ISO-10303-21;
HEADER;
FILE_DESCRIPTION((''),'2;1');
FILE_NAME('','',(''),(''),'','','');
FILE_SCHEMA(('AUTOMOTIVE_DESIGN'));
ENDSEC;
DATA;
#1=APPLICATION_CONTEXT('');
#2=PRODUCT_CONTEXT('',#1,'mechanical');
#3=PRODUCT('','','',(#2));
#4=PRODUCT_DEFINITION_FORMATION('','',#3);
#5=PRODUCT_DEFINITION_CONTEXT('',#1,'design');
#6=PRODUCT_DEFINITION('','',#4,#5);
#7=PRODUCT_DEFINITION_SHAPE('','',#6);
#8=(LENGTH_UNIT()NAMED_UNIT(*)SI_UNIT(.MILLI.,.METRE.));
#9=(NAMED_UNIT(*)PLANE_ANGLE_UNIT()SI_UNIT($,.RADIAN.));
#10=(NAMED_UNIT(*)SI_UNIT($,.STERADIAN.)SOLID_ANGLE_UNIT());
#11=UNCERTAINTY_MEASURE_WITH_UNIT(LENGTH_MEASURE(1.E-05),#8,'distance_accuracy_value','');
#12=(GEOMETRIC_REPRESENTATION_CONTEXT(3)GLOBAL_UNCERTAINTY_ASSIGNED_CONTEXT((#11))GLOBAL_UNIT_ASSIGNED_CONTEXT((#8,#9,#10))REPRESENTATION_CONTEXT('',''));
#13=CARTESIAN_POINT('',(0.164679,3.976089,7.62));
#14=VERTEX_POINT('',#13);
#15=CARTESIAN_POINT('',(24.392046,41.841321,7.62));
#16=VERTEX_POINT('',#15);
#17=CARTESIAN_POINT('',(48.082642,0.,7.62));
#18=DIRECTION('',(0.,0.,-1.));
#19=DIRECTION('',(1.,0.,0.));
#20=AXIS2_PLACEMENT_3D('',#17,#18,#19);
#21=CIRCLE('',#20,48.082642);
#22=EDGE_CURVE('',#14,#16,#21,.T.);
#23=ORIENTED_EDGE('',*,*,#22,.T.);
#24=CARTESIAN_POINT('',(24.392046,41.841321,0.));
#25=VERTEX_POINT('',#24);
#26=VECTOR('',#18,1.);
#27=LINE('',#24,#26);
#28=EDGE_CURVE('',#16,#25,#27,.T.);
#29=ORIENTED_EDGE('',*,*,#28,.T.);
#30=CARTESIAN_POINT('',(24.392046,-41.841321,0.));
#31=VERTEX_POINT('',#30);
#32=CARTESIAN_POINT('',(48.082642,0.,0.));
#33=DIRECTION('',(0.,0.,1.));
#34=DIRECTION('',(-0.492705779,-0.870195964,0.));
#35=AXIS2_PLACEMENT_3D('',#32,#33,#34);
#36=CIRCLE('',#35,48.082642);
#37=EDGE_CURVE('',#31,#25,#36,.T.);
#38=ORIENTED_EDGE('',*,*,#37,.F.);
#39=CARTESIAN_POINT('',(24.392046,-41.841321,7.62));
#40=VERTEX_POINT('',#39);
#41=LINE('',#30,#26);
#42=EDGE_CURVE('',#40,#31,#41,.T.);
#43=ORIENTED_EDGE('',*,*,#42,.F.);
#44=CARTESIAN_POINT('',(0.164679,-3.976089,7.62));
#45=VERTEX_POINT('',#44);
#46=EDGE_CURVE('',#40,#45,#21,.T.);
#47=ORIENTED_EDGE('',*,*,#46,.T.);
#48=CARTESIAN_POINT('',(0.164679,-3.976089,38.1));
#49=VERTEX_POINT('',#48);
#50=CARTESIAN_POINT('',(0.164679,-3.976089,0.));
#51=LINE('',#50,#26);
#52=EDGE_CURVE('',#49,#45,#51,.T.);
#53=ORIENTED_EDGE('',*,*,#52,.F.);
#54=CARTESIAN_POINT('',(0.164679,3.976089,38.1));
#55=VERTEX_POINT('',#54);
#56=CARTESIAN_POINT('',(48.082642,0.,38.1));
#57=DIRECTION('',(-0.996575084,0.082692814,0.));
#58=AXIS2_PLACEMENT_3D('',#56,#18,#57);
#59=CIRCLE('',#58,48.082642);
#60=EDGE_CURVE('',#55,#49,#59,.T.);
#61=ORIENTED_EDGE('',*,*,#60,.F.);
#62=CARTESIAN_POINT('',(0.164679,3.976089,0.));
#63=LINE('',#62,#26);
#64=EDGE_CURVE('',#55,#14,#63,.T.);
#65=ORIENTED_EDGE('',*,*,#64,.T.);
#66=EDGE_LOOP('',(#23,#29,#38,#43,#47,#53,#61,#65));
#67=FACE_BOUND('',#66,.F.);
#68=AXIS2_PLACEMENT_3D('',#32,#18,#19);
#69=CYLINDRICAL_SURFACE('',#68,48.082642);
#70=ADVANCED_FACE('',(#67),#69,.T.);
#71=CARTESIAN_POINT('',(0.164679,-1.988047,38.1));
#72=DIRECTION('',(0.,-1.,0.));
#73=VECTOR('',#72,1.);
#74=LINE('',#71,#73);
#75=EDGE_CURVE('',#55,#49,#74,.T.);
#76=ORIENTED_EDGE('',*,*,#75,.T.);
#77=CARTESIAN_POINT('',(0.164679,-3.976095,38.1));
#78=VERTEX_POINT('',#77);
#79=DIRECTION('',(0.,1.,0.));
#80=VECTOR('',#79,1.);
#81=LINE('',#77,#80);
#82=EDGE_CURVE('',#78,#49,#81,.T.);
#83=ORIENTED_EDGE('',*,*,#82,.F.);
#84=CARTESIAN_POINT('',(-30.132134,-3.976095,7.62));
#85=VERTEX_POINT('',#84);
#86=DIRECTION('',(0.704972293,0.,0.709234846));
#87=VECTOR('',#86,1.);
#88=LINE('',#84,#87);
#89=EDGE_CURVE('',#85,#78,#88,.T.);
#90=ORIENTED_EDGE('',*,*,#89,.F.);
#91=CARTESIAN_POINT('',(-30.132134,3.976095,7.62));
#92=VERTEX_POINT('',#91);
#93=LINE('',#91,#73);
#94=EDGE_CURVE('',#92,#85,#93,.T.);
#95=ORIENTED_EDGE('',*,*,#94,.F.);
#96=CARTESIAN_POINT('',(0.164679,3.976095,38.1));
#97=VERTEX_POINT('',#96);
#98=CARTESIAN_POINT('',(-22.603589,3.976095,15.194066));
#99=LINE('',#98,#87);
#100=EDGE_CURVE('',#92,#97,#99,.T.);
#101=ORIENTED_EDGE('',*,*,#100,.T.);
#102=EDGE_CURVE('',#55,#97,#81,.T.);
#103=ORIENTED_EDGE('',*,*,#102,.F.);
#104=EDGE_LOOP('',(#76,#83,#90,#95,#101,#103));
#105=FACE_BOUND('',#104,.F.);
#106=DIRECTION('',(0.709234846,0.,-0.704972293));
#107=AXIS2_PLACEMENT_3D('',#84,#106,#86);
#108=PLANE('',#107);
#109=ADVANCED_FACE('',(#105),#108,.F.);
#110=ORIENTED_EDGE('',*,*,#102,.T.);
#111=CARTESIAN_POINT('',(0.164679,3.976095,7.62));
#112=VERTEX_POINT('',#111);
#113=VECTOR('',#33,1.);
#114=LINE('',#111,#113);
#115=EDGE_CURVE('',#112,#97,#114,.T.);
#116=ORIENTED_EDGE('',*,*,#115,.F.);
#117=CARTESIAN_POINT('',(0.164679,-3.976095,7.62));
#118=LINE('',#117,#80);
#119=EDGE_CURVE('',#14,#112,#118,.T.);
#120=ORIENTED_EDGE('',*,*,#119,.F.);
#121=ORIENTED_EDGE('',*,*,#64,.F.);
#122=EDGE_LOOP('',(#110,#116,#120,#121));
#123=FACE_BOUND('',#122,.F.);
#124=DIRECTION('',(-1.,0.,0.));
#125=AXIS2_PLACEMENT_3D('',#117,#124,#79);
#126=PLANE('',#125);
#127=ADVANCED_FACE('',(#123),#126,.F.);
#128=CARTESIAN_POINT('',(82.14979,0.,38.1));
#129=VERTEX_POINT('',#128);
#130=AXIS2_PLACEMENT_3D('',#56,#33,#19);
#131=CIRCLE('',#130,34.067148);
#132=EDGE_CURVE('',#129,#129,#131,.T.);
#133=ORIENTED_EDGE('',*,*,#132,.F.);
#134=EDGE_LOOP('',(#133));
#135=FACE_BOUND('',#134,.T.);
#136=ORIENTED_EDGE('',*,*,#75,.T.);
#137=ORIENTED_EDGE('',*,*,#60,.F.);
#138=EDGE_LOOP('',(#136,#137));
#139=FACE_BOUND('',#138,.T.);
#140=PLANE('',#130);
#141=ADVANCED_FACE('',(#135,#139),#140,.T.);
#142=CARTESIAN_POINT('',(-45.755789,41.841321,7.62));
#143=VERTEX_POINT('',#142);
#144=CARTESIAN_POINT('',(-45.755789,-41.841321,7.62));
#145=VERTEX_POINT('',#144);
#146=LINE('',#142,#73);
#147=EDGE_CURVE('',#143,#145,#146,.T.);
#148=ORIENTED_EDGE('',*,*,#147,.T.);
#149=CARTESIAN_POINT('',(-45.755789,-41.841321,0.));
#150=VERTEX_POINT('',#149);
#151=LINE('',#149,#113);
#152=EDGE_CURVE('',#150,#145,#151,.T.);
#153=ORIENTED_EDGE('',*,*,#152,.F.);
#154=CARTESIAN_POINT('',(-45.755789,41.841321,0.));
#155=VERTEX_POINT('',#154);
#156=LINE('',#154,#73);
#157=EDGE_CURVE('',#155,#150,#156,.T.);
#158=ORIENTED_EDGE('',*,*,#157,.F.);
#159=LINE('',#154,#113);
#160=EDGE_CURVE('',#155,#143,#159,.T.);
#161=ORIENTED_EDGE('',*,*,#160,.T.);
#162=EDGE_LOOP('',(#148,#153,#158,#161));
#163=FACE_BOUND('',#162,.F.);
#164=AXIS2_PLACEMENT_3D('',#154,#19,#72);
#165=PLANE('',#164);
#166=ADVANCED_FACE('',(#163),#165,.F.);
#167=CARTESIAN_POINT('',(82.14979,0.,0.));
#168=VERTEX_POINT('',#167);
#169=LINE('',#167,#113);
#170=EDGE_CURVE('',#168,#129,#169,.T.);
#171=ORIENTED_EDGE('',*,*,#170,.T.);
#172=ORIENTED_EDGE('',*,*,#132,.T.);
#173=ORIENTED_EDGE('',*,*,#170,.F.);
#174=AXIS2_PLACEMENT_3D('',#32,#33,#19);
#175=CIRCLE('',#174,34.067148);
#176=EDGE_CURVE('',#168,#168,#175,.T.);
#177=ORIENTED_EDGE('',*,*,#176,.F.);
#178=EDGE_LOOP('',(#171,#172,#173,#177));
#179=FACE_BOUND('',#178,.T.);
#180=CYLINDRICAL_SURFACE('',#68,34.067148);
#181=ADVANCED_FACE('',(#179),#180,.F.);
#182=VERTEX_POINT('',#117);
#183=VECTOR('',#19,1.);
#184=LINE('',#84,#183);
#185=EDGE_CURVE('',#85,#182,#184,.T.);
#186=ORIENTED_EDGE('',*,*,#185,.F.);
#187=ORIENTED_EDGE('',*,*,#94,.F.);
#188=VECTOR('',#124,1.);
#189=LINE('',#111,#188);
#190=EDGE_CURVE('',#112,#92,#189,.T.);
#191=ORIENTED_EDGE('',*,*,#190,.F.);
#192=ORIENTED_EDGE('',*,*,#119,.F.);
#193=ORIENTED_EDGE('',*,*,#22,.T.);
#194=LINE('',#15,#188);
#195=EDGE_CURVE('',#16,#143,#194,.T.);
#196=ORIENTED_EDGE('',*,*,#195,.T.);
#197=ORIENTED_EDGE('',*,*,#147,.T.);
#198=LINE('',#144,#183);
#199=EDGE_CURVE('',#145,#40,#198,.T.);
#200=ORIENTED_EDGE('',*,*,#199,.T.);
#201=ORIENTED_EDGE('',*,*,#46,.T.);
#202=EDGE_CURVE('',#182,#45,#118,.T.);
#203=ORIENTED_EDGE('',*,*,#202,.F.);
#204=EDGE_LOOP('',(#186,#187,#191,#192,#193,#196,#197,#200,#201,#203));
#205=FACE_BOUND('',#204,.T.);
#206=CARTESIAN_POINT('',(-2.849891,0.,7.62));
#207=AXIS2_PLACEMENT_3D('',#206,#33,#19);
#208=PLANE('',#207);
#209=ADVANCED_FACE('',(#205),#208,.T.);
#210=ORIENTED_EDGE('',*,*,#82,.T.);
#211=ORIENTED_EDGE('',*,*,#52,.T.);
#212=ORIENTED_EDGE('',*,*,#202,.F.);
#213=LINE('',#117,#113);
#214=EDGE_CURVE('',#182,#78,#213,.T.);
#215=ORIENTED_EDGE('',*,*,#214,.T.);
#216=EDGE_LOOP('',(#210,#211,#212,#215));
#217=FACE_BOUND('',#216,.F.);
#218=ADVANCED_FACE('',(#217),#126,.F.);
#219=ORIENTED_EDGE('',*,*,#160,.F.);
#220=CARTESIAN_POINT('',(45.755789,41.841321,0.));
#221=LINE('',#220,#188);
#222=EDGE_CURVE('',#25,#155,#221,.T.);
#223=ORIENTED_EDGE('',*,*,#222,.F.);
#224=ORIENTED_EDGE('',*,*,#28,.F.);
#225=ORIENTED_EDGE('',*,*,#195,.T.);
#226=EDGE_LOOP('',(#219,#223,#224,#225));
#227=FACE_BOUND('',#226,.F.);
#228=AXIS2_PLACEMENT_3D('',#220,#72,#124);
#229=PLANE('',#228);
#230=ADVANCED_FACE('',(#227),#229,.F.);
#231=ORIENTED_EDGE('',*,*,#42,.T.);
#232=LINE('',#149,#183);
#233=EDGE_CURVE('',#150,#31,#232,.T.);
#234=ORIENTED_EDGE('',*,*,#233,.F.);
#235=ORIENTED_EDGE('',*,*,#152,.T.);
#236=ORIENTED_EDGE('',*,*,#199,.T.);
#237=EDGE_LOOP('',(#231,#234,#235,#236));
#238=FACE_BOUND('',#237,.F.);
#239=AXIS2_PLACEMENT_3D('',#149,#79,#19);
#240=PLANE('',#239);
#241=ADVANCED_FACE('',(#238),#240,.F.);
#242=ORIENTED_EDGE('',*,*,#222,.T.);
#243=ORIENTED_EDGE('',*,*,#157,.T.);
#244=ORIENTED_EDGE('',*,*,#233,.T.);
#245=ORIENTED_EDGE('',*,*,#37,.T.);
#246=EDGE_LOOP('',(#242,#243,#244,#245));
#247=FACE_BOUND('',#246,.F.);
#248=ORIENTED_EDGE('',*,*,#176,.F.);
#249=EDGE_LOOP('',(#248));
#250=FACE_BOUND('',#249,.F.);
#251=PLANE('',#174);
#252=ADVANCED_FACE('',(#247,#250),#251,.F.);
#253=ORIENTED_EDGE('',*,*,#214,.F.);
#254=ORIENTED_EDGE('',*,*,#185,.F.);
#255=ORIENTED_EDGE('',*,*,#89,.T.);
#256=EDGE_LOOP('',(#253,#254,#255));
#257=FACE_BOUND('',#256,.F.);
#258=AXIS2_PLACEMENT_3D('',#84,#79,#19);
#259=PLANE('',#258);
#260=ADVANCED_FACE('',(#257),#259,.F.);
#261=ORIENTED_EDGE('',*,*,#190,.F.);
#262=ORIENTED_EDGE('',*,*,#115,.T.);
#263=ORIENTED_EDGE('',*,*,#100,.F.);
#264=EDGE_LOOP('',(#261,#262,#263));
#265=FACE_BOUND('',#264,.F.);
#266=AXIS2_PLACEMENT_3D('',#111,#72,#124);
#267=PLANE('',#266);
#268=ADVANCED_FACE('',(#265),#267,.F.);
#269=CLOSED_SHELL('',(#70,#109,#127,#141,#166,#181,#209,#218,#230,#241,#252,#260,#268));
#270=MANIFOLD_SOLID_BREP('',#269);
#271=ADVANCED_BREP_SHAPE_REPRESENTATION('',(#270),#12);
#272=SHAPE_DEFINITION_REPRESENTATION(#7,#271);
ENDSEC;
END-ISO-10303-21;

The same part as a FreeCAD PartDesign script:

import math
import FreeCAD as App
import Part
import Sketcher
Q = App.Units.Quantity


def add_polygon(sketch, points):
    """Adds a closed chain of lines whose ends are joined by coincident constraints."""
    first, n = sketch.GeometryCount, len(points)
    for a, b in zip(points, points[1:] + points[:1]):
        sketch.addGeometry(Part.LineSegment(App.Vector(*a, 0), App.Vector(*b, 0)), False)
    for i in range(n):
        sketch.addConstraint(Sketcher.Constraint("Coincident", first + i, 2, first + (i + 1) % n, 1))

doc = App.newDocument("Part")
params = doc.addObject("Spreadsheet::Sheet", "Params")
for row, (alias, value) in enumerate([
    ("pad1_length", "0.3 in"),
    ("pad2_length", "1.5 in"),
    ("pad3_length", "1.5 in"),
    ("sketch4_height", "0.3 in"),
    ("sketch4_height2", "1.5 in"),
], start=1):
    params.set(f"A{row}", alias)
    params.set(f"B{row}", "=" + value)
    params.setAlias(f"B{row}", alias)

body = doc.addObject("PartDesign::Body", "Body")

# Sketch on XY plane
sketch1 = body.newObject("Sketcher::SketchObject", "Sketch")
sketch1.AttachmentSupport = (doc.getObject("XY_Plane"), [""])
sketch1.MapMode = "FlatFace"
sketch1.addGeometry([
    Part.LineSegment(App.Vector(-46, -42, 0), App.Vector(46, -42, 0)),
    Part.ArcOfCircle(Part.Circle(App.Vector(46, 0, 0), App.Vector(0, 0, 1), 42), math.radians(90), math.radians(270)),
    Part.LineSegment(App.Vector(46, 42, 0), App.Vector(-46, 42, 0)),
    Part.LineSegment(App.Vector(-46, 42, 0), App.Vector(-46, -42, 0)),
], False)
sketch1.addConstraint([
    Sketcher.Constraint("Tangent", 0, 2, 1, 2),
    Sketcher.Constraint("Tangent", 1, 1, 2, 1),
    Sketcher.Constraint("Coincident", 2, 2, 3, 1),
    Sketcher.Constraint("Coincident", 3, 2, 0, 1),
    Sketcher.Constraint("Horizontal", 0),
    Sketcher.Constraint("Horizontal", 2),
    Sketcher.Constraint("Vertical", 3),
    Sketcher.Constraint("Symmetric", 0, 2, 2, 2, -1, 1),
    Sketcher.Constraint("Radius", 1, 41.841321),
    Sketcher.Constraint("DistanceX", 0, 1, 0, 2, 91.511578),
])
pad1 = body.newObject("PartDesign::Pad", "Pad")
pad1.Profile = sketch1
pad1.setExpression("Length", "Params.pad1_length")

# Sketch on XY plane
sketch2 = body.newObject("Sketcher::SketchObject", "Sketch001")
sketch2.AttachmentSupport = (doc.getObject("XY_Plane"), [""])
sketch2.MapMode = "FlatFace"
sketch2.addGeometry([
    Part.Circle(App.Vector(48, 0, 0), App.Vector(0, 0, 1), 48),
    Part.Circle(App.Vector(48, 0, 0), App.Vector(0, 0, 1), 34),
], False)
sketch2.addConstraint([
    Sketcher.Constraint("Coincident", 1, 3, 0, 3),
    Sketcher.Constraint("PointOnObject", 0, 3, -1),
    Sketcher.Constraint("Diameter", 0, 96.165284),
    Sketcher.Constraint("Diameter", 1, 68.134296),
    Sketcher.Constraint("DistanceX", -1, 1, 0, 3, 48.082642),
])
pad2 = body.newObject("PartDesign::Pad", "Pad001")
pad2.Profile = sketch2
pad2.setExpression("Length", "Params.pad2_length")

# Sketch on XY plane
sketch3 = body.newObject("Sketcher::SketchObject", "Sketch002")
sketch3.AttachmentSupport = (doc.getObject("XY_Plane"), [""])
sketch3.MapMode = "FlatFace"
sketch3.AttachmentOffset = App.Placement(App.Vector(0, 0, 0.3 * 25.4), App.Rotation())
add_polygon(sketch3, [(0, -4), (0, 4), (-30, 4), (-30, -4)])  # lines 0-3
sketch3.addConstraint([
    Sketcher.Constraint("Vertical", 0),
    Sketcher.Constraint("Horizontal", 1),
    Sketcher.Constraint("Vertical", 2),
    Sketcher.Constraint("Horizontal", 3),
    Sketcher.Constraint("DistanceY", 0, 1, 0, 2, 7.95219),
    Sketcher.Constraint("DistanceX", 1, 2, 1, 1, 30.296813),
    Sketcher.Constraint("DistanceX", -1, 1, 0, 2, 0.164679),
    Sketcher.Constraint("DistanceY", -1, 1, 0, 2, 3.976095),
])
pad3 = body.newObject("PartDesign::Pad", "Pad002")
pad3.Profile = sketch3
pad3.setExpression("Length", "Params.pad3_length")

# Sketch on XZ plane
sketch4 = body.newObject("Sketcher::SketchObject", "Sketch003")
sketch4.AttachmentSupport = (doc.getObject("XZ_Plane"), [""])
sketch4.MapMode = "FlatFace"
sketch4.AttachmentOffset = App.Placement(App.Vector(0, 0, 3.976095), App.Rotation())
add_polygon(sketch4, [(-30, 8), (0, 38), (0, 46), (-30, 46)])  # lines 0-3
sketch4.addConstraint([
    Sketcher.Constraint("Vertical", 1),
    Sketcher.Constraint("Horizontal", 2),
    Sketcher.Constraint("Vertical", 3),
    Sketcher.Constraint("DistanceY", 1, 1, 1, 2, Q("0.3 in")),
    Sketcher.Constraint("DistanceY", 3, 2, 3, 1, Q("1.5 in")),
    Sketcher.Constraint("DistanceY", -1, 1, 0, 2, Q("1.5 in")),
    Sketcher.Constraint("Distance", 0, 42.975892),
    Sketcher.Constraint("DistanceX", -1, 1, 0, 2, 0.164679),
])
sketch4.setExpression("Constraints[7]", "Params.sketch4_height")
sketch4.setExpression("Constraints[8]", "Params.sketch4_height2")
pocket1 = body.newObject("PartDesign::Pocket", "Pocket")
pocket1.Profile = sketch4
pocket1.Type = "ThroughAll"

doc.recompute()
